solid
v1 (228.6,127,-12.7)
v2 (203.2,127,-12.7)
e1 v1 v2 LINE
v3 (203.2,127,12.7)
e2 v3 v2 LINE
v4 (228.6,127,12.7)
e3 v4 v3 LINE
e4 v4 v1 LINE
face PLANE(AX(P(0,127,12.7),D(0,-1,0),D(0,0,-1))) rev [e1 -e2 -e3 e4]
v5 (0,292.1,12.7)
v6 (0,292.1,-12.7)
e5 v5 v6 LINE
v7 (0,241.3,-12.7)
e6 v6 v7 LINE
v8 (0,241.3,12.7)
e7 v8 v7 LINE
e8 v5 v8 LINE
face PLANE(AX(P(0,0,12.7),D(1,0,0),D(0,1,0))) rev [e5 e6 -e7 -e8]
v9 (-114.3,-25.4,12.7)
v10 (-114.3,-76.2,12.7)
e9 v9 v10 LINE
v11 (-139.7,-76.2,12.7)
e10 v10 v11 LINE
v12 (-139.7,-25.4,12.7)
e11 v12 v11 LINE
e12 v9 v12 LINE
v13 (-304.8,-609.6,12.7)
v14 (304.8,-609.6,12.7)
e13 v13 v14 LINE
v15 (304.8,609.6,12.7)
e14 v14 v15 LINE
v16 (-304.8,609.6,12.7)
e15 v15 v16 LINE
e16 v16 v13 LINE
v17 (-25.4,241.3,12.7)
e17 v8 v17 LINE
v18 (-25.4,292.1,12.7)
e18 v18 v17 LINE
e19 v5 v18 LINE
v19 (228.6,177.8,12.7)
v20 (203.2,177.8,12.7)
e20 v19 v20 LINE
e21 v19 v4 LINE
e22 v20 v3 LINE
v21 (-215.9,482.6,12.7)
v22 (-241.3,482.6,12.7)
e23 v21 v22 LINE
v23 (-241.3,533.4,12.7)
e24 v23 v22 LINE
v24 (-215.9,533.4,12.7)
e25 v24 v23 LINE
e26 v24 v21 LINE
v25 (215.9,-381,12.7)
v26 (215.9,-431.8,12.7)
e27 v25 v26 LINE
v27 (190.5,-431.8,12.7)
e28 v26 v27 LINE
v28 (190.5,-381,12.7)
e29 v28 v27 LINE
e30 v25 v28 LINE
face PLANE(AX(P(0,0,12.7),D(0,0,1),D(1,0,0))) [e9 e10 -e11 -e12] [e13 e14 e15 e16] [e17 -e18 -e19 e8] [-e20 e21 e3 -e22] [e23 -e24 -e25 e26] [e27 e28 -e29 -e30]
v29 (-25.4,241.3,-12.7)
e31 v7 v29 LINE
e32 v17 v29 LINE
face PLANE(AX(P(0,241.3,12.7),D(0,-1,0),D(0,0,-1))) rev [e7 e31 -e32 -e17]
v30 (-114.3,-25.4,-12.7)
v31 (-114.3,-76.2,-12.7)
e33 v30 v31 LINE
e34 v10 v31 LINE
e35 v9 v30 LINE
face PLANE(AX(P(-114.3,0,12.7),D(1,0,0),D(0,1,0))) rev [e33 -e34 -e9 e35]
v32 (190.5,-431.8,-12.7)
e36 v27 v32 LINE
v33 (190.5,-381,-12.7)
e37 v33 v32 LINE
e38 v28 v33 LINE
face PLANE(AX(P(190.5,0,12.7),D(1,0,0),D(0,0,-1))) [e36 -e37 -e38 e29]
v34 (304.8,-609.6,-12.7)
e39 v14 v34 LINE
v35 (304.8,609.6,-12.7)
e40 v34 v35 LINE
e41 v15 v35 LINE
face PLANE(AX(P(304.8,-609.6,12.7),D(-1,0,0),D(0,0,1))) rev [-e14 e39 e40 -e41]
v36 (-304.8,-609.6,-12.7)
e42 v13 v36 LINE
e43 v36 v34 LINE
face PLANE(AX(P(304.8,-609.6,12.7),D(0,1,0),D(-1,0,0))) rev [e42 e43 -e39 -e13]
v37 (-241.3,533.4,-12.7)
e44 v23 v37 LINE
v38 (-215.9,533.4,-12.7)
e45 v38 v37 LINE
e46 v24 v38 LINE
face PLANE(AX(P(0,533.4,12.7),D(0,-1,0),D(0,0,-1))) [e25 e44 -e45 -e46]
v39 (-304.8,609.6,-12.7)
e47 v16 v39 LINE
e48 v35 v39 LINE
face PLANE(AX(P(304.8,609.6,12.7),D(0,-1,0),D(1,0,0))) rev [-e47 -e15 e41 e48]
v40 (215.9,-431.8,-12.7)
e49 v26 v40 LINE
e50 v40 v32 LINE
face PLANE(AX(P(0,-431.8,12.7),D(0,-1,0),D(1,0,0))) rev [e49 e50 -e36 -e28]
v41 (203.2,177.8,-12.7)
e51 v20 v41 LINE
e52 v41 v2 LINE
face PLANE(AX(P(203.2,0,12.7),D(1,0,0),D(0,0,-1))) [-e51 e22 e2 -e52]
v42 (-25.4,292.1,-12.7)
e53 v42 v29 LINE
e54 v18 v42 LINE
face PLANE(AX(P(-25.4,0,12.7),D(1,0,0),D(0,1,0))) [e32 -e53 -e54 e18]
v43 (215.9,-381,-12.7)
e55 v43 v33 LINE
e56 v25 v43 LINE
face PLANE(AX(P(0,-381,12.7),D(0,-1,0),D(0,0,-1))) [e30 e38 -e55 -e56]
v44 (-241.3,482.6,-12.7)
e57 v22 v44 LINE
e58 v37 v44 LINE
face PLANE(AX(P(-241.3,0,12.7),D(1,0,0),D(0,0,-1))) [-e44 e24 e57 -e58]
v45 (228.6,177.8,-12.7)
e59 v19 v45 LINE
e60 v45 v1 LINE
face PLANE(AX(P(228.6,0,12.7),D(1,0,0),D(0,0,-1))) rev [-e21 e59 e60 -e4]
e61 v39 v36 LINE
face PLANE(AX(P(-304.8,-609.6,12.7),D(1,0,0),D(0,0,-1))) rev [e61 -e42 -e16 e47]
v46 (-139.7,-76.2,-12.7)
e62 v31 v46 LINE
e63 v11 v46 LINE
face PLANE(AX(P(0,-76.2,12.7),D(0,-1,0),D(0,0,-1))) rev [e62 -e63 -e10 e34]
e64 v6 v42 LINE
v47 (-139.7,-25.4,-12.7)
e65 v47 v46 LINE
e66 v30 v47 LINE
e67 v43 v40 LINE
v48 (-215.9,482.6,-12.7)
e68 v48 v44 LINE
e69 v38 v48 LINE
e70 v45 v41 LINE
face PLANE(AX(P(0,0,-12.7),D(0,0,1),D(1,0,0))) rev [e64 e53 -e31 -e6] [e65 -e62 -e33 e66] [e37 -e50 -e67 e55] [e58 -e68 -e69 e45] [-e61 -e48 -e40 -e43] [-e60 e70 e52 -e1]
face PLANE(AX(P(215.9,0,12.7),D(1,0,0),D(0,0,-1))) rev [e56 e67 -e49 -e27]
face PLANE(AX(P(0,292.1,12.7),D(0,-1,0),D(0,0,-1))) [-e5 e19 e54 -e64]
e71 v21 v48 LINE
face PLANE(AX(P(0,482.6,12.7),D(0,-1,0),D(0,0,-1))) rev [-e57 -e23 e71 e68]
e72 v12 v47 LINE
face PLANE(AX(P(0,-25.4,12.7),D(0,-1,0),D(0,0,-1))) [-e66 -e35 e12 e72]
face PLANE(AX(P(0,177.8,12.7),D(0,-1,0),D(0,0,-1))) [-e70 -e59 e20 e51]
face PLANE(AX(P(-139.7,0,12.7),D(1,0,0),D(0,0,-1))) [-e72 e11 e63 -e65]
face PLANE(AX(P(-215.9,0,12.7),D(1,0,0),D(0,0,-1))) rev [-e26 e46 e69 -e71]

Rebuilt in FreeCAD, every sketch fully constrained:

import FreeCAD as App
import Part
import Sketcher
Q = App.Units.Quantity

doc = App.newDocument("Part")
params = doc.addObject("Spreadsheet::Sheet", "Params")
for row, (alias, value) in enumerate([
    ("sketch1_width", "24 in"),
    ("sketch1_height", "48 in"),
    ("pad1_length", "1 in"),
    ("sketch2_width", "1 in"),
    ("sketch2_height", "2 in"),
], start=1):
    params.set(f"A{row}", alias)
    params.set(f"B{row}", "=" + value)
    params.setAlias(f"B{row}", alias)

body = doc.addObject("PartDesign::Body", "Body")

# Sketch on XY plane
sketch1 = body.newObject("Sketcher::SketchObject", "Sketch")
sketch1.AttachmentSupport = (doc.getObject("XY_Plane"), [""])
sketch1.MapMode = "FlatFace"
sketch1.addGeometry(Part.LineSegment(App.Vector(-304.8, 609.6, 0), App.Vector(-304.8, -609.6, 0)), False)
sketch1.addGeometry(Part.LineSegment(App.Vector(-304.8, -609.6, 0), App.Vector(304.8, -609.6, 0)), False)
sketch1.addGeometry(Part.LineSegment(App.Vector(304.8, -609.6, 0), App.Vector(304.8, 609.6, 0)), False)
sketch1.addGeometry(Part.LineSegment(App.Vector(304.8, 609.6, 0), App.Vector(-304.8, 609.6, 0)), False)
sketch1.addConstraint(Sketcher.Constraint("Coincident", 0, 2, 1, 1))
sketch1.addConstraint(Sketcher.Constraint("Coincident", 1, 2, 2, 1))
sketch1.addConstraint(Sketcher.Constraint("Coincident", 2, 2, 3, 1))
sketch1.addConstraint(Sketcher.Constraint("Coincident", 3, 2, 0, 1))
sketch1.addConstraint(Sketcher.Constraint("Vertical", 0))
sketch1.addConstraint(Sketcher.Constraint("Horizontal", 1))
sketch1.addConstraint(Sketcher.Constraint("Vertical", 2))
sketch1.addConstraint(Sketcher.Constraint("Horizontal", 3))
sketch1.addConstraint(Sketcher.Constraint("Symmetric", 0, 2, 2, 2, -1, 1))
sketch1.addConstraint(Sketcher.Constraint("DistanceX", 1, 1, 1, 2, Q("24 in")))
sketch1.addConstraint(Sketcher.Constraint("DistanceY", 0, 2, 0, 1, Q("48 in")))
sketch1.setExpression("Constraints[9]", "Params.sketch1_width")
sketch1.setExpression("Constraints[10]", "Params.sketch1_height")
pad1 = body.newObject("PartDesign::Pad", "Pad")
pad1.Profile = sketch1
pad1.setExpression("Length", "Params.pad1_length")
pad1.Midplane = True

# Sketch on XY plane
sketch2 = body.newObject("Sketcher::SketchObject", "Sketch001")
sketch2.AttachmentSupport = (doc.getObject("XY_Plane"), [""])
sketch2.MapMode = "FlatFace"
sketch2.AttachmentOffset = App.Placement(App.Vector(0, 0, -0.5 * 25.4), App.Rotation())
sketch2.addGeometry(Part.LineSegment(App.Vector(0, 292.1, 0), App.Vector(0, 241.3, 0)), False)
sketch2.addGeometry(Part.LineSegment(App.Vector(0, 241.3, 0), App.Vector(-25.4, 241.3, 0)), False)
sketch2.addGeometry(Part.LineSegment(App.Vector(-25.4, 241.3, 0), App.Vector(-25.4, 292.1, 0)), False)
sketch2.addGeometry(Part.LineSegment(App.Vector(-25.4, 292.1, 0), App.Vector(0, 292.1, 0)), False)
sketch2.addGeometry(Part.LineSegment(App.Vector(228.6, 127, 0), App.Vector(203.2, 127, 0)), False)
sketch2.addGeometry(Part.LineSegment(App.Vector(203.2, 127, 0), App.Vector(203.2, 177.8, 0)), False)
sketch2.addGeometry(Part.LineSegment(App.Vector(203.2, 177.8, 0), App.Vector(228.6, 177.8, 0)), False)
sketch2.addGeometry(Part.LineSegment(App.Vector(228.6, 177.8, 0), App.Vector(228.6, 127, 0)), False)
sketch2.addGeometry(Part.LineSegment(App.Vector(-114.3, -25.4, 0), App.Vector(-114.3, -76.2, 0)), False)
sketch2.addGeometry(Part.LineSegment(App.Vector(-114.3, -76.2, 0), App.Vector(-139.7, -76.2, 0)), False)
sketch2.addGeometry(Part.LineSegment(App.Vector(-139.7, -76.2, 0), App.Vector(-139.7, -25.4, 0)), False)
sketch2.addGeometry(Part.LineSegment(App.Vector(-139.7, -25.4, 0), App.Vector(-114.3, -25.4, 0)), False)
sketch2.addGeometry(Part.LineSegment(App.Vector(-215.9, 482.6, 0), App.Vector(-241.3, 482.6, 0)), False)
sketch2.addGeometry(Part.LineSegment(App.Vector(-241.3, 482.6, 0), App.Vector(-241.3, 533.4, 0)), False)
sketch2.addGeometry(Part.LineSegment(App.Vector(-241.3, 533.4, 0), App.Vector(-215.9, 533.4, 0)), False)
sketch2.addGeometry(Part.LineSegment(App.Vector(-215.9, 533.4, 0), App.Vector(-215.9, 482.6, 0)), False)
sketch2.addGeometry(Part.LineSegment(App.Vector(215.9, -431.8, 0), App.Vector(190.5, -431.8, 0)), False)
sketch2.addGeometry(Part.LineSegment(App.Vector(190.5, -431.8, 0), App.Vector(190.5, -381, 0)), False)
sketch2.addGeometry(Part.LineSegment(App.Vector(190.5, -381, 0), App.Vector(215.9, -381, 0)), False)
sketch2.addGeometry(Part.LineSegment(App.Vector(215.9, -381, 0), App.Vector(215.9, -431.8, 0)), False)
sketch2.addConstraint(Sketcher.Constraint("Coincident", 0, 2, 1, 1))
sketch2.addConstraint(Sketcher.Constraint("Coincident", 1, 2, 2, 1))
sketch2.addConstraint(Sketcher.Constraint("Coincident", 2, 2, 3, 1))
sketch2.addConstraint(Sketcher.Constraint("Coincident", 3, 2, 0, 1))
sketch2.addConstraint(Sketcher.Constraint("Coincident", 4, 2, 5, 1))
sketch2.addConstraint(Sketcher.Constraint("Coincident", 5, 2, 6, 1))
sketch2.addConstraint(Sketcher.Constraint("Coincident", 6, 2, 7, 1))
sketch2.addConstraint(Sketcher.Constraint("Coincident", 7, 2, 4, 1))
sketch2.addConstraint(Sketcher.Constraint("Coincident", 8, 2, 9, 1))
sketch2.addConstraint(Sketcher.Constraint("Coincident", 9, 2, 10, 1))
sketch2.addConstraint(Sketcher.Constraint("Coincident", 10, 2, 11, 1))
sketch2.addConstraint(Sketcher.Constraint("Coincident", 11, 2, 8, 1))
sketch2.addConstraint(Sketcher.Constraint("Coincident", 12, 2, 13, 1))
sketch2.addConstraint(Sketcher.Constraint("Coincident", 13, 2, 14, 1))
sketch2.addConstraint(Sketcher.Constraint("Coincident", 14, 2, 15, 1))
sketch2.addConstraint(Sketcher.Constraint("Coincident", 15, 2, 12, 1))
sketch2.addConstraint(Sketcher.Constraint("Coincident", 16, 2, 17, 1))
sketch2.addConstraint(Sketcher.Constraint("Coincident", 17, 2, 18, 1))
sketch2.addConstraint(Sketcher.Constraint("Coincident", 18, 2, 19, 1))
sketch2.addConstraint(Sketcher.Constraint("Coincident", 19, 2, 16, 1))
sketch2.addConstraint(Sketcher.Constraint("Vertical", 0))
sketch2.addConstraint(Sketcher.Constraint("Horizontal", 1))
sketch2.addConstraint(Sketcher.Constraint("Vertical", 2))
sketch2.addConstraint(Sketcher.Constraint("Horizontal", 3))
sketch2.addConstraint(Sketcher.Constraint("Horizontal", 4))
sketch2.addConstraint(Sketcher.Constraint("Vertical", 5))
sketch2.addConstraint(Sketcher.Constraint("Horizontal", 6))
sketch2.addConstraint(Sketcher.Constraint("Vertical", 7))
sketch2.addConstraint(Sketcher.Constraint("Vertical", 8))
sketch2.addConstraint(Sketcher.Constraint("Horizontal", 9))
sketch2.addConstraint(Sketcher.Constraint("Vertical", 10))
sketch2.addConstraint(Sketcher.Constraint("Horizontal", 11))
sketch2.addConstraint(Sketcher.Constraint("Horizontal", 12))
sketch2.addConstraint(Sketcher.Constraint("Vertical", 13))
sketch2.addConstraint(Sketcher.Constraint("Horizontal", 14))
sketch2.addConstraint(Sketcher.Constraint("Vertical", 15))
sketch2.addConstraint(Sketcher.Constraint("Horizontal", 16))
sketch2.addConstraint(Sketcher.Constraint("Vertical", 17))
sketch2.addConstraint(Sketcher.Constraint("Horizontal", 18))
sketch2.addConstraint(Sketcher.Constraint("Vertical", 19))
sketch2.addConstraint(Sketcher.Constraint("PointOnObject", 0, 2, -2))
sketch2.addConstraint(Sketcher.Constraint("Equal", 3, 4))
sketch2.addConstraint(Sketcher.Constraint("Equal", 6, 9))
sketch2.addConstraint(Sketcher.Constraint("Equal", 11, 12))
sketch2.addConstraint(Sketcher.Constraint("Equal", 14, 16))
sketch2.addConstraint(Sketcher.Constraint("Equal", 2, 5))
sketch2.addConstraint(Sketcher.Constraint("Equal", 7, 8))
sketch2.addConstraint(Sketcher.Constraint("Equal", 10, 13))
sketch2.addConstraint(Sketcher.Constraint("Equal", 15, 17))
sketch2.addConstraint(Sketcher.Constraint("DistanceX", 1, 2, 1, 1, Q("1 in")))
sketch2.addConstraint(Sketcher.Constraint("DistanceY", 0, 2, 0, 1, Q("2 in")))
sketch2.addConstraint(Sketcher.Constraint("DistanceX", -1, 1, 4, 2, Q("8 in")))
sketch2.addConstraint(Sketcher.Constraint("DistanceY", -1, 1, 4, 2, Q("5 in")))
sketch2.addConstraint(Sketcher.Constraint("DistanceY", 8, 2, -1, 1, Q("3 in")))
sketch2.addConstraint(Sketcher.Constraint("DistanceY", -1, 1, 12, 2, Q("19 in")))
sketch2.addConstraint(Sketcher.Constraint("DistanceY", 16, 2, -1, 1, Q("17 in")))
sketch2.addConstraint(Sketcher.Constraint("DistanceX", 12, 2, 10, 2, Q("4 in")))
sketch2.addConstraint(Sketcher.Constraint("DistanceX", 8, 2, 16, 2, Q("12 in")))
sketch2.addConstraint(Sketcher.Constraint("DistanceY", -1, 1, 0, 2, Q("9.5 in")))
sketch2.addConstraint(Sketcher.Constraint("DistanceX", 8, 2, -1, 1, Q("4.5 in")))
sketch2.setExpression("Constraints[49]", "Params.sketch2_width")
sketch2.setExpression("Constraints[50]", "Params.sketch2_height")
pocket1 = body.newObject("PartDesign::Pocket", "Pocket")
pocket1.Profile = sketch2
pocket1.Type = "ThroughAll"
pocket1.Reversed = True

doc.recompute()
